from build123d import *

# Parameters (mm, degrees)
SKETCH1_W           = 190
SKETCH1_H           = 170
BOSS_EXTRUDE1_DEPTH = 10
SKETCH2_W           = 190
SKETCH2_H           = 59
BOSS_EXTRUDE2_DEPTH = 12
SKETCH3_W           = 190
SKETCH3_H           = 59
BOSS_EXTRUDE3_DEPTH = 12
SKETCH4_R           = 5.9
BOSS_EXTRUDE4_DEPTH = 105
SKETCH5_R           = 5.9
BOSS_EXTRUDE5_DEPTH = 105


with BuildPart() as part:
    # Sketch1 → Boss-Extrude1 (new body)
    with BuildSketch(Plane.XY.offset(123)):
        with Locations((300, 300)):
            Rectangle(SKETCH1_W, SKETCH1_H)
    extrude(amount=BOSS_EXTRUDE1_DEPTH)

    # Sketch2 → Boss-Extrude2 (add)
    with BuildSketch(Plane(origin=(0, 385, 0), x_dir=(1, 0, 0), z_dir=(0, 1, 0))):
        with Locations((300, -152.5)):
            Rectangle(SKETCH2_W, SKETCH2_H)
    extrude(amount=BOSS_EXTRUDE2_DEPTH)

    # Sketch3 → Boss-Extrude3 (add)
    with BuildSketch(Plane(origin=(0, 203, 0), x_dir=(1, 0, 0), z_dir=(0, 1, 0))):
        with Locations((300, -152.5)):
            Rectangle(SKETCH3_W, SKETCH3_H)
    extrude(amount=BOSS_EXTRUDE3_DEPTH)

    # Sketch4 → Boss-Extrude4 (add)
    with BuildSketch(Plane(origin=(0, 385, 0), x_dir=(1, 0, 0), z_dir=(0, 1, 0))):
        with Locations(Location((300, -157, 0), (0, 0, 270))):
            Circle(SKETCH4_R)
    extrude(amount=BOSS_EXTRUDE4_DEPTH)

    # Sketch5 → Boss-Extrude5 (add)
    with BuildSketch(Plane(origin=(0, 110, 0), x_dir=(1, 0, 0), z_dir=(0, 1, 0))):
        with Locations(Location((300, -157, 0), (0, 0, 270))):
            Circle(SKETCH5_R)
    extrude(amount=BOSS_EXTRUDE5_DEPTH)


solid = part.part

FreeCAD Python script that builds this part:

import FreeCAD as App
import Part
import Sketcher

V = App.Vector
Q = App.Units.Quantity


def add_polygon(sketch, points):
    """Adds a closed chain of lines whose ends are joined by coincident constraints."""
    first, n = sketch.GeometryCount, len(points)
    for a, b in zip(points, points[1:] + points[:1]):
        sketch.addGeometry(Part.LineSegment(App.Vector(*a, 0), App.Vector(*b, 0)), False)
    for i in range(n):
        sketch.addConstraint(Sketcher.Constraint("Coincident", first + i, 2, first + (i + 1) % n, 1))

doc = App.newDocument("Part")
body = doc.addObject("PartDesign::Body", "Body")

# Sketch on XY plane
sketch1 = doc.addObject("Sketcher::SketchObject", "Sketch")
body.addObject(sketch1)
sketch1.AttachmentSupport = (doc.XY_Plane, [""])
sketch1.MapMode = "FlatFace"
sketch1.AttachmentOffset = App.Placement(V(0, 0, 123), App.Rotation())
add_polygon(sketch1, [(205, 385), (205, 215), (395, 215), (395, 385)])  # lines 0-3
sketch1.addConstraint([
    Sketcher.Constraint("Vertical", 0),
    Sketcher.Constraint("Horizontal", 1),
    Sketcher.Constraint("Vertical", 2),
    Sketcher.Constraint("Horizontal", 3),
    Sketcher.Constraint("DistanceX", 1, 1, 1, 2, Q("190 mm")),
    Sketcher.Constraint("DistanceY", 0, 2, 0, 1, Q("170 mm")),
    Sketcher.Constraint("DistanceX", -1, 1, 0, 2, Q("205 mm")),
    Sketcher.Constraint("DistanceY", -1, 1, 0, 2, Q("215 mm")),
])
pad1 = doc.addObject("PartDesign::Pad", "Pad")
body.addObject(pad1)
pad1.Profile = sketch1
pad1.Length = 10

# Sketch on XZ plane
sketch2 = doc.addObject("Sketcher::SketchObject", "Sketch001")
body.addObject(sketch2)
sketch2.AttachmentSupport = (doc.XZ_Plane, [""])
sketch2.MapMode = "FlatFace"
sketch2.AttachmentOffset = App.Placement(V(0, 0, -385), App.Rotation())
add_polygon(sketch2, [(205, 123), (205, 182), (395, 182), (395, 123)])  # lines 0-3
sketch2.addConstraint([
    Sketcher.Constraint("Vertical", 0),
    Sketcher.Constraint("Horizontal", 1),
    Sketcher.Constraint("Vertical", 2),
    Sketcher.Constraint("Horizontal", 3),
    Sketcher.Constraint("DistanceX", 1, 1, 1, 2, Q("190 mm")),
    Sketcher.Constraint("DistanceY", 0, 1, 0, 2, Q("59 mm")),
    Sketcher.Constraint("DistanceX", -1, 1, 0, 2, Q("205 mm")),
    Sketcher.Constraint("DistanceY", -1, 1, 0, 2, Q("182 mm")),
])
pad2 = doc.addObject("PartDesign::Pad", "Pad001")
body.addObject(pad2)
pad2.Profile = sketch2
pad2.Length = 12
pad2.Reversed = True

# Sketch on XZ plane
sketch3 = doc.addObject("Sketcher::SketchObject", "Sketch002")
body.addObject(sketch3)
sketch3.AttachmentSupport = (doc.XZ_Plane, [""])
sketch3.MapMode = "FlatFace"
sketch3.AttachmentOffset = App.Placement(V(0, 0, -203), App.Rotation())
add_polygon(sketch3, [(205, 123), (205, 182), (395, 182), (395, 123)])  # lines 0-3
sketch3.addConstraint([
    Sketcher.Constraint("Vertical", 0),
    Sketcher.Constraint("Horizontal", 1),
    Sketcher.Constraint("Vertical", 2),
    Sketcher.Constraint("Horizontal", 3),
    Sketcher.Constraint("DistanceX", 1, 1, 1, 2, Q("190 mm")),
    Sketcher.Constraint("DistanceY", 0, 1, 0, 2, Q("59 mm")),
    Sketcher.Constraint("DistanceX", -1, 1, 0, 2, Q("205 mm")),
    Sketcher.Constraint("DistanceY", -1, 1, 0, 2, Q("182 mm")),
])
pad3 = doc.addObject("PartDesign::Pad", "Pad002")
body.addObject(pad3)
pad3.Profile = sketch3
pad3.Length = 12
pad3.Reversed = True

# Sketch on XZ plane
sketch4 = doc.addObject("Sketcher::SketchObject", "Sketch003")
body.addObject(sketch4)
sketch4.AttachmentSupport = (doc.XZ_Plane, [""])
sketch4.MapMode = "FlatFace"
sketch4.AttachmentOffset = App.Placement(V(0, 0, -385), App.Rotation())
sketch4.addGeometry(Part.Circle(V(300, 157, 0), V(0, 0, 1), 6), False)
sketch4.addConstraint([
    Sketcher.Constraint("Diameter", 0, Q("11.8 mm")),
    Sketcher.Constraint("DistanceX", -1, 1, 0, 3, Q("300 mm")),
    Sketcher.Constraint("DistanceY", -1, 1, 0, 3, Q("157 mm")),
])
pad4 = doc.addObject("PartDesign::Pad", "Pad003")
body.addObject(pad4)
pad4.Profile = sketch4
pad4.Length = 105
pad4.Reversed = True

# Sketch on XZ plane
sketch5 = doc.addObject("Sketcher::SketchObject", "Sketch004")
body.addObject(sketch5)
sketch5.AttachmentSupport = (doc.XZ_Plane, [""])
sketch5.MapMode = "FlatFace"
sketch5.AttachmentOffset = App.Placement(V(0, 0, -110), App.Rotation())
sketch5.addGeometry(Part.Circle(V(300, 157, 0), V(0, 0, 1), 6), False)
sketch5.addConstraint([
    Sketcher.Constraint("Diameter", 0, Q("11.8 mm")),
    Sketcher.Constraint("DistanceX", -1, 1, 0, 3, Q("300 mm")),
    Sketcher.Constraint("DistanceY", -1, 1, 0, 3, Q("157 mm")),
])
pad5 = doc.addObject("PartDesign::Pad", "Pad004")
body.addObject(pad5)
pad5.Profile = sketch5
pad5.Length = 105
pad5.Reversed = True

doc.recompute()
